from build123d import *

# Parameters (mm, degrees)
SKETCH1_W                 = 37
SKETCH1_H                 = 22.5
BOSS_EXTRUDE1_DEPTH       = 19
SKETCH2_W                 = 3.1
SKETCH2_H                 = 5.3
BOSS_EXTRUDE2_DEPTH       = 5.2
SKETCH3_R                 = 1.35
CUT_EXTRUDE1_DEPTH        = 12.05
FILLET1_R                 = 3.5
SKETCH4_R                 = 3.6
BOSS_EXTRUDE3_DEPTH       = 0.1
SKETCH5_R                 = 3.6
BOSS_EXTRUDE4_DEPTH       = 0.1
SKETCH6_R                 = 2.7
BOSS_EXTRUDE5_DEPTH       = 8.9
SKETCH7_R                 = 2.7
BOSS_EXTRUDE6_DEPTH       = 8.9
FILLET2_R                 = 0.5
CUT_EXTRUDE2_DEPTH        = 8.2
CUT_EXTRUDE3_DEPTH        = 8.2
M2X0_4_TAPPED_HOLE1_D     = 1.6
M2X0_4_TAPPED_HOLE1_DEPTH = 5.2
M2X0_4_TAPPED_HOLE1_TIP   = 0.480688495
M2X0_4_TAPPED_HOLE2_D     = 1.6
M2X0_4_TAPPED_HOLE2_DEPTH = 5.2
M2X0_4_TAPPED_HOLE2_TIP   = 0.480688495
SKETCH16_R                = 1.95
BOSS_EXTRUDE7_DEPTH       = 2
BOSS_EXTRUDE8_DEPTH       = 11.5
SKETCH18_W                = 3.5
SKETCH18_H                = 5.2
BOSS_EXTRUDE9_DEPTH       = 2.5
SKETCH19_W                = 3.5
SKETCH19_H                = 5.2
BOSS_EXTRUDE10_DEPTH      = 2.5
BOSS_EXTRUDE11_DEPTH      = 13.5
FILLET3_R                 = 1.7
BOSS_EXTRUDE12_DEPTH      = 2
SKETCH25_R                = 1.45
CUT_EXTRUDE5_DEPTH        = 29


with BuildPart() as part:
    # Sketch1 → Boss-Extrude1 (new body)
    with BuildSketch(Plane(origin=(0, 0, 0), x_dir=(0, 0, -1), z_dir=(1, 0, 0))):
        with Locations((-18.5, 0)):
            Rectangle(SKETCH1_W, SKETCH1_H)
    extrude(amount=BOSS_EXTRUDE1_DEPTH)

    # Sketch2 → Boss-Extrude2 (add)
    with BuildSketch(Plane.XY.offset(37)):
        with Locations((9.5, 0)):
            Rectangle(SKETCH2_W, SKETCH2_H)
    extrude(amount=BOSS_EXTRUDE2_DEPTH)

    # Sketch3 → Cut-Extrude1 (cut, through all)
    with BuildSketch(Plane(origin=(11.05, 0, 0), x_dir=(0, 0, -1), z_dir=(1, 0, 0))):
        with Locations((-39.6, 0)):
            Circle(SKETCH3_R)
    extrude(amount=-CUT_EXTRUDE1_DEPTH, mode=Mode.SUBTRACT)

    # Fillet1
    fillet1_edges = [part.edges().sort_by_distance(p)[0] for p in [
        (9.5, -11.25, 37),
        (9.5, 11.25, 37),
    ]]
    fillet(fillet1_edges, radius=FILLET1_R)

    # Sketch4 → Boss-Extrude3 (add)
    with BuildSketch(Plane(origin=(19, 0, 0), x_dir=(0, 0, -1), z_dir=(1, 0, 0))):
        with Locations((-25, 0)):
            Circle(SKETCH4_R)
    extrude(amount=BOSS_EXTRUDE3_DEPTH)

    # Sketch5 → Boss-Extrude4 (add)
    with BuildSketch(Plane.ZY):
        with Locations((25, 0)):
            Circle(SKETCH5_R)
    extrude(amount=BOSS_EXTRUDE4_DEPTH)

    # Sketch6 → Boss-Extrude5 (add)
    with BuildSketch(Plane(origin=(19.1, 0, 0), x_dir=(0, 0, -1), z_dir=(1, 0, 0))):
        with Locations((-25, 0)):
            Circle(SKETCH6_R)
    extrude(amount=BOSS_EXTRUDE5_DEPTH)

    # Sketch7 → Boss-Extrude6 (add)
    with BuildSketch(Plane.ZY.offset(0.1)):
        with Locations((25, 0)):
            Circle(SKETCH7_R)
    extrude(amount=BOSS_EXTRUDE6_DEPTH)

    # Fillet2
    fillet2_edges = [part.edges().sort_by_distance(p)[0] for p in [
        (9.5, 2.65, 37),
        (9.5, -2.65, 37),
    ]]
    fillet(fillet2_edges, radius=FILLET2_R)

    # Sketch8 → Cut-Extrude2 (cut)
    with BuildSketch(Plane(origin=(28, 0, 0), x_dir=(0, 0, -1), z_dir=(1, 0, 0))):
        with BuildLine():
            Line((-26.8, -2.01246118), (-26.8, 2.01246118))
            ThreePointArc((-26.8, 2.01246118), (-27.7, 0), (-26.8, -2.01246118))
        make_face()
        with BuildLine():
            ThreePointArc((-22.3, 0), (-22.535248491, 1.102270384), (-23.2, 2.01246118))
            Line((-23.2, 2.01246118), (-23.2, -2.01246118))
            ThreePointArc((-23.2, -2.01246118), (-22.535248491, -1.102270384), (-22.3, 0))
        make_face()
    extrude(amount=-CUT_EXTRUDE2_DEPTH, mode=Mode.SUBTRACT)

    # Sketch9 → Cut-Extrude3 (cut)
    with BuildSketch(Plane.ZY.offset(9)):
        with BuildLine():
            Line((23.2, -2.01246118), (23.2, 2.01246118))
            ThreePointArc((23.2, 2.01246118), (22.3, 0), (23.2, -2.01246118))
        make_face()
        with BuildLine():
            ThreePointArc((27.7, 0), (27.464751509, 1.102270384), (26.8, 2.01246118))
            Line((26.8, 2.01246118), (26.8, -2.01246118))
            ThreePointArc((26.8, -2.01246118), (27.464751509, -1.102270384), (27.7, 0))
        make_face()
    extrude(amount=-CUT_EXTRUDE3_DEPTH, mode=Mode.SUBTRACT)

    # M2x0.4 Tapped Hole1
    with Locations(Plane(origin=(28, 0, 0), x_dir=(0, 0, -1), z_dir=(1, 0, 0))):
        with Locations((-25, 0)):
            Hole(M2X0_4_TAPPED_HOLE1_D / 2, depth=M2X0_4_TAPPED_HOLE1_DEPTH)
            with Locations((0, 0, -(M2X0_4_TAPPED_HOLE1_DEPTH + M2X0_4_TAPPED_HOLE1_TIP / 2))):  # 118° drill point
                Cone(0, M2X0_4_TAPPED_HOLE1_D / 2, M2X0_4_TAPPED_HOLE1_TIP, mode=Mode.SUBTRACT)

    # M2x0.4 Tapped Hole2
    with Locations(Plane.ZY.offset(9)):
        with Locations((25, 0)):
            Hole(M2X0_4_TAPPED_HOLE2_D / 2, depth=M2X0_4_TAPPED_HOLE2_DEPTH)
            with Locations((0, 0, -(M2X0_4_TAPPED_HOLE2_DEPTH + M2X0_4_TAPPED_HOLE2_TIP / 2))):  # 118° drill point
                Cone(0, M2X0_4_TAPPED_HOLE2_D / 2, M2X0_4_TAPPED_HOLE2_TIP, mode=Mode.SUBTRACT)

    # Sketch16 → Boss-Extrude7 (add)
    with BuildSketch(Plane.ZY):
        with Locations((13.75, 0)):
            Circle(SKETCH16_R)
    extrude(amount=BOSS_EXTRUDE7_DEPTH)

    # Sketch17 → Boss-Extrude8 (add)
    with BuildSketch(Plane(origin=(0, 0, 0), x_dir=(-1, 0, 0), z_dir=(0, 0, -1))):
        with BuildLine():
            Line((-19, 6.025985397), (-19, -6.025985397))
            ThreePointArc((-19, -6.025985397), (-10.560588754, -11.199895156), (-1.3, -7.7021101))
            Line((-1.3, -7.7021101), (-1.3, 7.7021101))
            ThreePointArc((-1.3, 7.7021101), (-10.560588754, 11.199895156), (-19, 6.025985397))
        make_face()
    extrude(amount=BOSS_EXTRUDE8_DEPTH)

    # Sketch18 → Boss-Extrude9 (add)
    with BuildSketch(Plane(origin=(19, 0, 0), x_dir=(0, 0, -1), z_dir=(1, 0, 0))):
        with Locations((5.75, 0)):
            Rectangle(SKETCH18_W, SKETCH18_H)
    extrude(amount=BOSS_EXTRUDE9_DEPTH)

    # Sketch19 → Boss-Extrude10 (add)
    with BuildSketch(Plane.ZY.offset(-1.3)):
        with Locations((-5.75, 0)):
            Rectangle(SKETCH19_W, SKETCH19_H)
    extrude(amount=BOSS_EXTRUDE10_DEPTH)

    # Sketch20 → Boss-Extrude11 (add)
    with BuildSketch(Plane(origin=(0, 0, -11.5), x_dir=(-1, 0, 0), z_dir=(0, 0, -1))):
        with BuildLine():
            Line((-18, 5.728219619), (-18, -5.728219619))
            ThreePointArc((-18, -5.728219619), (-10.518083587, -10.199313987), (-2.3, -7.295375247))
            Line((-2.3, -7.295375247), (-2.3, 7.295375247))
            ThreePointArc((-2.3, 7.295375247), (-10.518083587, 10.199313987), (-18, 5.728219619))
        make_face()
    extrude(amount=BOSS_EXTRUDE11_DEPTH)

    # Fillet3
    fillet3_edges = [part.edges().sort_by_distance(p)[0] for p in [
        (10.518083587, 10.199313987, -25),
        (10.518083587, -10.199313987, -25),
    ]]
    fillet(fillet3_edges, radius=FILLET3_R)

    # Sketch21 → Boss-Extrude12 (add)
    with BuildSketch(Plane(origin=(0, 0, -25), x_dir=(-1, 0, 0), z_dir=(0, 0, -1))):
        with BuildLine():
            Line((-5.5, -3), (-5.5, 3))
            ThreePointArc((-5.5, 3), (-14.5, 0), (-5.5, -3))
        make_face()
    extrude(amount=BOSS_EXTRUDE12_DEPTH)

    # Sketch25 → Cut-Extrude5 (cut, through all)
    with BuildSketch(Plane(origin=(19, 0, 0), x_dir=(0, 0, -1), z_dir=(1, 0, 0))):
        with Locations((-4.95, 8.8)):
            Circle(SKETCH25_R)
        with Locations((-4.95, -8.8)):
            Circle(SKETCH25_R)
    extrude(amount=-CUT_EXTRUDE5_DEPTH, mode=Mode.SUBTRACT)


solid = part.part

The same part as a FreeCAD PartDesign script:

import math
import FreeCAD as App
import Part
import Sketcher
from FreeCAD import Vector
Q = App.Units.Quantity


def edges_at(feature, points):
    """Names of the edges that pass closest to the given points."""
    edges = feature.Shape.Edges
    near = lambda p: min(range(len(edges)), key=lambda i: edges[i].distToShape(Part.Vertex(*p))[0])
    return sorted({f"Edge{near(p) + 1}" for p in points})


def add_polygon(sketch, points):
    """Adds a closed chain of lines whose ends are joined by coincident constraints."""
    first, n = sketch.GeometryCount, len(points)
    for a, b in zip(points, points[1:] + points[:1]):
        sketch.addGeometry(Part.LineSegment(App.Vector(*a, 0), App.Vector(*b, 0)), False)
    for i in range(n):
        sketch.addConstraint(Sketcher.Constraint("Coincident", first + i, 2, first + (i + 1) % n, 1))

doc = App.newDocument("Part")
body = doc.addObject("PartDesign::Body", "Body")

# Sketch on YZ plane
sketch1 = body.newObject("Sketcher::SketchObject", "Sketch")
sketch1.AttachmentSupport = (doc.getObject("YZ_Plane"), [""])
sketch1.MapMode = "FlatFace"
add_polygon(sketch1, [(11.25, 37), (-11.25, 37), (-11.25, 0), (11.25, 0)])  # lines 0-3
sketch1.addConstraint(Sketcher.Constraint("Horizontal", 0))
sketch1.addConstraint(Sketcher.Constraint("Vertical", 1))
sketch1.addConstraint(Sketcher.Constraint("Horizontal", 2))
sketch1.addConstraint(Sketcher.Constraint("Vertical", 3))
sketch1.addConstraint(Sketcher.Constraint("Symmetric", 1, 2, 2, 2, -1, 1))
sketch1.addConstraint(Sketcher.Constraint("DistanceY", 1, 2, 1, 1, Q("37 mm")))
sketch1.addConstraint(Sketcher.Constraint("DistanceX", 0, 2, 0, 1, Q("22.5 mm")))
pad1 = body.newObject("PartDesign::Pad", "Pad")
pad1.Profile = sketch1
pad1.Length = 19

# Sketch on XY plane
sketch2 = body.newObject("Sketcher::SketchObject", "Sketch001")
sketch2.AttachmentSupport = (doc.getObject("XY_Plane"), [""])
sketch2.MapMode = "FlatFace"
sketch2.AttachmentOffset = App.Placement(Vector(0, 0, 37), App.Rotation())
add_polygon(sketch2, [(7.95, 2.65), (7.95, -2.65), (11.05, -2.65), (11.05, 2.65)])  # lines 0-3
sketch2.addConstraint(Sketcher.Constraint("Vertical", 0))
sketch2.addConstraint(Sketcher.Constraint("Horizontal", 1))
sketch2.addConstraint(Sketcher.Constraint("Vertical", 2))
sketch2.addConstraint(Sketcher.Constraint("Horizontal", 3))
sketch2.addConstraint(Sketcher.Constraint("DistanceX", 1, 1, 1, 2, Q("3.1 mm")))
sketch2.addConstraint(Sketcher.Constraint("DistanceY", 0, 2, 0, 1, Q("5.3 mm")))
sketch2.addConstraint(Sketcher.Constraint("DistanceX", -1, 1, 0, 2, Q("7.95 mm")))
sketch2.addConstraint(Sketcher.Constraint("DistanceY", 0, 2, -1, 1, Q("2.65 mm")))
pad2 = body.newObject("PartDesign::Pad", "Pad001")
pad2.Profile = sketch2
pad2.Length = 5.2

# Sketch on YZ plane
sketch3 = body.newObject("Sketcher::SketchObject", "Sketch002")
sketch3.AttachmentSupport = (doc.getObject("YZ_Plane"), [""])
sketch3.MapMode = "FlatFace"
sketch3.AttachmentOffset = App.Placement(Vector(0, 0, 11.05), App.Rotation())
sketch3.addGeometry(Part.Circle(Vector(0, 39.6, 0), Vector(0, 0, 1), 1.35), False)
sketch3.addConstraint(Sketcher.Constraint("PointOnObject", 0, 3, -2))
sketch3.addConstraint(Sketcher.Constraint("Diameter", 0, Q("2.7 mm")))
sketch3.addConstraint(Sketcher.Constraint("DistanceY", -1, 1, 0, 3, Q("39.6 mm")))
pocket1 = body.newObject("PartDesign::Pocket", "Pocket")
pocket1.Profile = sketch3
pocket1.Type = "ThroughAll"
doc.recompute()

fillet = body.newObject("PartDesign::Fillet", "Fillet")
fillet.Base = (pocket1, edges_at(pocket1, [(9.5, -11.25, 37), (9.5, 11.25, 37)]))
fillet.Radius = 3.5

# Sketch on YZ plane
sketch4 = body.newObject("Sketcher::SketchObject", "Sketch003")
sketch4.AttachmentSupport = (doc.getObject("YZ_Plane"), [""])
sketch4.MapMode = "FlatFace"
sketch4.AttachmentOffset = App.Placement(Vector(0, 0, 19), App.Rotation())
sketch4.addGeometry(Part.Circle(Vector(0, 25, 0), Vector(0, 0, 1), 3.6), False)
sketch4.addConstraint(Sketcher.Constraint("PointOnObject", 0, 3, -2))
sketch4.addConstraint(Sketcher.Constraint("Diameter", 0, Q("7.2 mm")))
sketch4.addConstraint(Sketcher.Constraint("DistanceY", -1, 1, 0, 3, Q("25 mm")))
pad3 = body.newObject("PartDesign::Pad", "Pad002")
pad3.Profile = sketch4
pad3.Length = 0.1

# Sketch on YZ plane
sketch5 = body.newObject("Sketcher::SketchObject", "Sketch004")
sketch5.AttachmentSupport = (doc.getObject("YZ_Plane"), [""])
sketch5.MapMode = "FlatFace"
sketch5.addGeometry(Part.Circle(Vector(0, 25, 0), Vector(0, 0, 1), 3.6), False)
sketch5.addConstraint(Sketcher.Constraint("PointOnObject", 0, 3, -2))
sketch5.addConstraint(Sketcher.Constraint("Diameter", 0, Q("7.2 mm")))
sketch5.addConstraint(Sketcher.Constraint("DistanceY", -1, 1, 0, 3, Q("25 mm")))
pad4 = body.newObject("PartDesign::Pad", "Pad003")
pad4.Profile = sketch5
pad4.Length = 0.1
pad4.Reversed = True

# Sketch on YZ plane
sketch6 = body.newObject("Sketcher::SketchObject", "Sketch005")
sketch6.AttachmentSupport = (doc.getObject("YZ_Plane"), [""])
sketch6.MapMode = "FlatFace"
sketch6.AttachmentOffset = App.Placement(Vector(0, 0, 19.1), App.Rotation())
sketch6.addGeometry(Part.Circle(Vector(0, 25, 0), Vector(0, 0, 1), 2.7), False)
sketch6.addConstraint(Sketcher.Constraint("PointOnObject", 0, 3, -2))
sketch6.addConstraint(Sketcher.Constraint("Diameter", 0, Q("5.4 mm")))
sketch6.addConstraint(Sketcher.Constraint("DistanceY", -1, 1, 0, 3, Q("25 mm")))
pad5 = body.newObject("PartDesign::Pad", "Pad004")
pad5.Profile = sketch6
pad5.Length = 8.9

# Sketch on YZ plane
sketch7 = body.newObject("Sketcher::SketchObject", "Sketch006")
sketch7.AttachmentSupport = (doc.getObject("YZ_Plane"), [""])
sketch7.MapMode = "FlatFace"
sketch7.AttachmentOffset = App.Placement(Vector(0, 0, -0.1), App.Rotation())
sketch7.addGeometry(Part.Circle(Vector(0, 25, 0), Vector(0, 0, 1), 2.7), False)
sketch7.addConstraint(Sketcher.Constraint("PointOnObject", 0, 3, -2))
sketch7.addConstraint(Sketcher.Constraint("Diameter", 0, Q("5.4 mm")))
sketch7.addConstraint(Sketcher.Constraint("DistanceY", -1, 1, 0, 3, Q("25 mm")))
pad6 = body.newObject("PartDesign::Pad", "Pad005")
pad6.Profile = sketch7
pad6.Length = 8.9
pad6.Reversed = True
doc.recompute()

fillet2 = body.newObject("PartDesign::Fillet", "Fillet001")
fillet2.Base = (pad6, edges_at(pad6, [(9.5, 2.65, 37), (9.5, -2.65, 37)]))
fillet2.Radius = 0.5

# Sketch on YZ plane
sketch8 = body.newObject("Sketcher::SketchObject", "Sketch007")
sketch8.AttachmentSupport = (doc.getObject("YZ_Plane"), [""])
sketch8.MapMode = "FlatFace"
sketch8.AttachmentOffset = App.Placement(Vector(0, 0, 28), App.Rotation())
sketch8.addGeometry(Part.LineSegment(Vector(-2.012461, 26.8, 0), Vector(2.012461, 26.8, 0)), False)
sketch8.addGeometry(Part.ArcOfCircle(Part.Circle(Vector(0, 25, 0), Vector(0, 0, 1), 2.7), math.radians(41.810315), math.radians(138.189685)), False)
sketch8.addGeometry(Part.ArcOfCircle(Part.Circle(Vector(0, 25, 0), Vector(0, 0, 1), 2.7), math.radians(-90), math.radians(-41.810315)), False)
sketch8.addGeometry(Part.LineSegment(Vector(2.012461, 23.2, 0), Vector(-2.012461, 23.2, 0)), False)
sketch8.addGeometry(Part.ArcOfCircle(Part.Circle(Vector(0, 25, 0), Vector(0, 0, 1), 2.7), math.radians(-138.189685), math.radians(-90)), False)
sketch8.addConstraint(Sketcher.Constraint("Coincident", 0, 1, 1, 2))
sketch8.addConstraint(Sketcher.Constraint("Coincident", 1, 1, 0, 2))
sketch8.addConstraint(Sketcher.Constraint("Coincident", 2, 2, 3, 1))
sketch8.addConstraint(Sketcher.Constraint("Coincident", 3, 2, 4, 1))
sketch8.addConstraint(Sketcher.Constraint("Tangent", 4, 2, 2, 1))
sketch8.addConstraint(Sketcher.Constraint("Horizontal", 0))
sketch8.addConstraint(Sketcher.Constraint("Horizontal", 3))
sketch8.addConstraint(Sketcher.Constraint("Coincident", 2, 3, 1, 3))
sketch8.addConstraint(Sketcher.Constraint("Equal", 1, 2))
sketch8.addConstraint(Sketcher.Constraint("Equal", 2, 4))
sketch8.addConstraint(Sketcher.Constraint("PointOnObject", 1, 3, -2))
sketch8.addConstraint(Sketcher.Constraint("PointOnObject", 4, 2, -2))
sketch8.addConstraint(Sketcher.Constraint("Vertical", 1, 1, 2, 2))
sketch8.addConstraint(Sketcher.Constraint("Radius", 1, Q("2.7 mm")))
sketch8.addConstraint(Sketcher.Constraint("DistanceY", -1, 1, 1, 3, Q("25 mm")))
sketch8.addConstraint(Sketcher.Constraint("DistanceY", -1, 1, 0, 1, Q("26.8 mm")))
pocket2 = body.newObject("PartDesign::Pocket", "Pocket001")
pocket2.Profile = sketch8
pocket2.Length = 8.2

# Sketch on YZ plane
sketch9 = body.newObject("Sketcher::SketchObject", "Sketch008")
sketch9.AttachmentSupport = (doc.getObject("YZ_Plane"), [""])
sketch9.MapMode = "FlatFace"
sketch9.AttachmentOffset = App.Placement(Vector(0, 0, -9), App.Rotation())
sketch9.addGeometry(Part.LineSegment(Vector(-2.012461, 23.2, 0), Vector(2.012461, 23.2, 0)), False)
sketch9.addGeometry(Part.ArcOfCircle(Part.Circle(Vector(0, 25, 0), Vector(0, 0, 1), 2.7), math.radians(-138.189685), math.radians(-41.810315)), False)
sketch9.addGeometry(Part.ArcOfCircle(Part.Circle(Vector(0, 25, 0), Vector(0, 0, 1), 2.7), math.radians(41.810315), math.radians(90)), False)
sketch9.addGeometry(Part.LineSegment(Vector(2.012461, 26.8, 0), Vector(-2.012461, 26.8, 0)), False)
sketch9.addGeometry(Part.ArcOfCircle(Part.Circle(Vector(0, 25, 0), Vector(0, 0, 1), 2.7), math.radians(90), math.radians(138.189685)), False)
sketch9.addConstraint(Sketcher.Constraint("Coincident", 0, 1, 1, 1))
sketch9.addConstraint(Sketcher.Constraint("Coincident", 1, 2, 0, 2))
sketch9.addConstraint(Sketcher.Constraint("Coincident", 2, 1, 3, 1))
sketch9.addConstraint(Sketcher.Constraint("Coincident", 3, 2, 4, 2))
sketch9.addConstraint(Sketcher.Constraint("Tangent", 4, 1, 2, 2))
sketch9.addConstraint(Sketcher.Constraint("Horizontal", 0))
sketch9.addConstraint(Sketcher.Constraint("Horizontal", 3))
sketch9.addConstraint(Sketcher.Constraint("Coincident", 2, 3, 1, 3))
sketch9.addConstraint(Sketcher.Constraint("Equal", 1, 2))
sketch9.addConstraint(Sketcher.Constraint("Equal", 2, 4))
sketch9.addConstraint(Sketcher.Constraint("PointOnObject", 1, 3, -2))
sketch9.addConstraint(Sketcher.Constraint("PointOnObject", 4, 1, -2))
sketch9.addConstraint(Sketcher.Constraint("Vertical", 1, 2, 2, 1))
sketch9.addConstraint(Sketcher.Constraint("Radius", 1, Q("2.7 mm")))
sketch9.addConstraint(Sketcher.Constraint("DistanceY", -1, 1, 1, 3, Q("25 mm")))
sketch9.addConstraint(Sketcher.Constraint("DistanceY", -1, 1, 0, 1, Q("23.2 mm")))
pocket3 = body.newObject("PartDesign::Pocket", "Pocket002")
pocket3.Profile = sketch9
pocket3.Length = 8.2
pocket3.Reversed = True

# Sketch on YZ plane
sketch10 = body.newObject("Sketcher::SketchObject", "Sketch009")
sketch10.AttachmentSupport = (doc.getObject("YZ_Plane"), [""])
sketch10.MapMode = "FlatFace"
sketch10.AttachmentOffset = App.Placement(Vector(0, 0, 28), App.Rotation())
sketch10.addGeometry(Part.Circle(Vector(0, 25, 0), Vector(0, 0, 1), 0.8), False)
sketch10.addConstraint(Sketcher.Constraint("PointOnObject", 0, 3, -2))
sketch10.addConstraint(Sketcher.Constraint("Diameter", 0, Q("1.6 mm")))
sketch10.addConstraint(Sketcher.Constraint("DistanceY", -1, 1, 0, 3, Q("25 mm")))
doc.recompute()
hole = body.newObject("PartDesign::Hole", "Hole")
hole.Profile = sketch10
hole.ThreadType = "None"
hole.Diameter = 1.6
hole.DepthType = "Dimension"
hole.Depth = 5.2
hole.DrillPoint = "Angled"
hole.DrillPointAngle = 118

# Sketch on YZ plane
sketch11 = body.newObject("Sketcher::SketchObject", "Sketch010")
sketch11.AttachmentSupport = (doc.getObject("YZ_Plane"), [""])
sketch11.MapMode = "FlatFace"
sketch11.AttachmentOffset = App.Placement(Vector(0, 0, -9), App.Rotation())
sketch11.addGeometry(Part.Circle(Vector(0, 25, 0), Vector(0, 0, 1), 0.8), False)
sketch11.addConstraint(Sketcher.Constraint("PointOnObject", 0, 3, -2))
sketch11.addConstraint(Sketcher.Constraint("Diameter", 0, Q("1.6 mm")))
sketch11.addConstraint(Sketcher.Constraint("DistanceY", -1, 1, 0, 3, Q("25 mm")))
doc.recompute()
hole2 = body.newObject("PartDesign::Hole", "Hole001")
hole2.Profile = sketch11
hole2.ThreadType = "None"
hole2.Diameter = 1.6
hole2.DepthType = "Dimension"
hole2.Depth = 5.2
hole2.DrillPoint = "Angled"
hole2.DrillPointAngle = 118
hole2.Reversed = True

# Sketch on YZ plane
sketch12 = body.newObject("Sketcher::SketchObject", "Sketch011")
sketch12.AttachmentSupport = (doc.getObject("YZ_Plane"), [""])
sketch12.MapMode = "FlatFace"
sketch12.addGeometry(Part.Circle(Vector(0, 13.75, 0), Vector(0, 0, 1), 1.95), False)
sketch12.addConstraint(Sketcher.Constraint("PointOnObject", 0, 3, -2))
sketch12.addConstraint(Sketcher.Constraint("Diameter", 0, Q("3.9 mm")))
sketch12.addConstraint(Sketcher.Constraint("DistanceY", -1, 1, 0, 3, Q("13.75 mm")))
pad7 = body.newObject("PartDesign::Pad", "Pad006")
pad7.Profile = sketch12
pad7.Length = 2
pad7.Reversed = True

# Sketch on XY plane
sketch13 = body.newObject("Sketcher::SketchObject", "Sketch012")
sketch13.AttachmentSupport = (doc.getObject("XY_Plane"), [""])
sketch13.MapMode = "FlatFace"
sketch13.addGeometry(Part.LineSegment(Vector(19, 6.025985, 0), Vector(19, -6.025985, 0)), False)
sketch13.addGeometry(Part.ArcOfCircle(Part.Circle(Vector(9.5, 0, 0), Vector(0, 0, 1), 11.25), math.radians(-136.793326), math.radians(-32.387539)), False)
sketch13.addGeometry(Part.LineSegment(Vector(1.3, -7.70211, 0), Vector(1.3, 7.70211, 0)), False)
sketch13.addGeometry(Part.ArcOfCircle(Part.Circle(Vector(9.5, 0, 0), Vector(0, 0, 1), 11.25), math.radians(32.387539), math.radians(136.793326)), False)
sketch13.addConstraint(Sketcher.Constraint("Coincident", 0, 2, 1, 2))
sketch13.addConstraint(Sketcher.Constraint("Coincident", 1, 1, 2, 1))
sketch13.addConstraint(Sketcher.Constraint("Coincident", 2, 2, 3, 2))
sketch13.addConstraint(Sketcher.Constraint("Coincident", 3, 1, 0, 1))
sketch13.addConstraint(Sketcher.Constraint("Vertical", 0))
sketch13.addConstraint(Sketcher.Constraint("Vertical", 2))
sketch13.addConstraint(Sketcher.Constraint("Coincident", 3, 3, 1, 3))
sketch13.addConstraint(Sketcher.Constraint("Equal", 1, 3))
sketch13.addConstraint(Sketcher.Constraint("PointOnObject", 1, 3, -1))
sketch13.addConstraint(Sketcher.Constraint("Radius", 1, Q("11.25 mm")))
sketch13.addConstraint(Sketcher.Constraint("DistanceX", -1, 1, 0, 2, Q("19 mm")))
sketch13.addConstraint(Sketcher.Constraint("DistanceX", -1, 1, 1, 3, Q("9.5 mm")))
sketch13.addConstraint(Sketcher.Constraint("DistanceX", -1, 1, 1, 1, Q("1.3 mm")))
pad8 = body.newObject("PartDesign::Pad", "Pad007")
pad8.Profile = sketch13
pad8.Length = 11.5
pad8.Reversed = True

# Sketch on YZ plane
sketch14 = body.newObject("Sketcher::SketchObject", "Sketch013")
sketch14.AttachmentSupport = (doc.getObject("YZ_Plane"), [""])
sketch14.MapMode = "FlatFace"
sketch14.AttachmentOffset = App.Placement(Vector(0, 0, 19), App.Rotation())
add_polygon(sketch14, [(2.6, -4), (-2.6, -4), (-2.6, -7.5), (2.6, -7.5)])  # lines 0-3
sketch14.addConstraint(Sketcher.Constraint("Horizontal", 0))
sketch14.addConstraint(Sketcher.Constraint("Vertical", 1))
sketch14.addConstraint(Sketcher.Constraint("Horizontal", 2))
sketch14.addConstraint(Sketcher.Constraint("Vertical", 3))
sketch14.addConstraint(Sketcher.Constraint("DistanceX", 0, 2, 0, 1, Q("5.2 mm")))
sketch14.addConstraint(Sketcher.Constraint("DistanceY", 1, 2, 1, 1, Q("3.5 mm")))
sketch14.addConstraint(Sketcher.Constraint("DistanceY", 0, 2, -1, 1, Q("4 mm")))
sketch14.addConstraint(Sketcher.Constraint("DistanceX", 0, 2, -1, 1, Q("2.6 mm")))
pad9 = body.newObject("PartDesign::Pad", "Pad008")
pad9.Profile = sketch14
pad9.Length = 2.5

# Sketch on YZ plane
sketch15 = body.newObject("Sketcher::SketchObject", "Sketch014")
sketch15.AttachmentSupport = (doc.getObject("YZ_Plane"), [""])
sketch15.MapMode = "FlatFace"
sketch15.AttachmentOffset = App.Placement(Vector(0, 0, 1.3), App.Rotation())
add_polygon(sketch15, [(2.6, -7.5), (-2.6, -7.5), (-2.6, -4), (2.6, -4)])  # lines 0-3
sketch15.addConstraint(Sketcher.Constraint("Horizontal", 0))
sketch15.addConstraint(Sketcher.Constraint("Vertical", 1))
sketch15.addConstraint(Sketcher.Constraint("Horizontal", 2))
sketch15.addConstraint(Sketcher.Constraint("Vertical", 3))
sketch15.addConstraint(Sketcher.Constraint("DistanceX", 0, 2, 0, 1, Q("5.2 mm")))
sketch15.addConstraint(Sketcher.Constraint("DistanceY", 1, 1, 1, 2, Q("3.5 mm")))
sketch15.addConstraint(Sketcher.Constraint("DistanceY", 1, 2, -1, 1, Q("4 mm")))
sketch15.addConstraint(Sketcher.Constraint("DistanceX", 0, 2, -1, 1, Q("2.6 mm")))
pad10 = body.newObject("PartDesign::Pad", "Pad009")
pad10.Profile = sketch15
pad10.Length = 2.5
pad10.Reversed = True

# Sketch on XY plane
sketch16 = body.newObject("Sketcher::SketchObject", "Sketch015")
sketch16.AttachmentSupport = (doc.getObject("XY_Plane"), [""])
sketch16.MapMode = "FlatFace"
sketch16.AttachmentOffset = App.Placement(Vector(0, 0, -11.5), App.Rotation())
sketch16.addGeometry(Part.LineSegment(Vector(18, 5.72822, 0), Vector(18, -5.72822, 0)), False)
sketch16.addGeometry(Part.ArcOfCircle(Part.Circle(Vector(9.5, 0, 0), Vector(0, 0, 1), 10.25), math.radians(-134.623016), math.radians(-33.976353)), False)
sketch16.addGeometry(Part.LineSegment(Vector(2.3, -7.295375, 0), Vector(2.3, 7.295375, 0)), False)
sketch16.addGeometry(Part.ArcOfCircle(Part.Circle(Vector(9.5, 0, 0), Vector(0, 0, 1), 10.25), math.radians(33.976353), math.radians(134.623016)), False)
sketch16.addConstraint(Sketcher.Constraint("Coincident", 0, 2, 1, 2))
sketch16.addConstraint(Sketcher.Constraint("Coincident", 1, 1, 2, 1))
sketch16.addConstraint(Sketcher.Constraint("Coincident", 2, 2, 3, 2))
sketch16.addConstraint(Sketcher.Constraint("Coincident", 3, 1, 0, 1))
sketch16.addConstraint(Sketcher.Constraint("Vertical", 0))
sketch16.addConstraint(Sketcher.Constraint("Vertical", 2))
sketch16.addConstraint(Sketcher.Constraint("Coincident", 3, 3, 1, 3))
sketch16.addConstraint(Sketcher.Constraint("Equal", 1, 3))
sketch16.addConstraint(Sketcher.Constraint("PointOnObject", 1, 3, -1))
sketch16.addConstraint(Sketcher.Constraint("Radius", 1, Q("10.25 mm")))
sketch16.addConstraint(Sketcher.Constraint("DistanceX", -1, 1, 0, 2, Q("18 mm")))
sketch16.addConstraint(Sketcher.Constraint("DistanceX", -1, 1, 1, 3, Q("9.5 mm")))
sketch16.addConstraint(Sketcher.Constraint("DistanceX", -1, 1, 1, 1, Q("2.3 mm")))
pad11 = body.newObject("PartDesign::Pad", "Pad010")
pad11.Profile = sketch16
pad11.Length = 13.5
pad11.Reversed = True
doc.recompute()

fillet3 = body.newObject("PartDesign::Fillet", "Fillet002")
fillet3.Base = (pad11, edges_at(pad11, [(10.518, 10.199, -25), (10.518, -10.199, -25)]))
fillet3.Radius = 1.7

# Sketch on XY plane
sketch17 = body.newObject("Sketcher::SketchObject", "Sketch016")
sketch17.AttachmentSupport = (doc.getObject("XY_Plane"), [""])
sketch17.MapMode = "FlatFace"
sketch17.AttachmentOffset = App.Placement(Vector(0, 0, -25), App.Rotation())
sketch17.addGeometry(Part.LineSegment(Vector(5.5, -3, 0), Vector(5.5, 3, 0)), False)
sketch17.addGeometry(Part.ArcOfCircle(Part.Circle(Vector(9.5, 0, 0), Vector(0, 0, 1), 5), math.radians(-143.130102), math.radians(143.130102)), False)
sketch17.addConstraint(Sketcher.Constraint("Coincident", 0, 1, 1, 1))
sketch17.addConstraint(Sketcher.Constraint("Coincident", 1, 2, 0, 2))
sketch17.addConstraint(Sketcher.Constraint("Vertical", 0))
sketch17.addConstraint(Sketcher.Constraint("PointOnObject", 1, 3, -1))
sketch17.addConstraint(Sketcher.Constraint("Radius", 1, Q("5 mm")))
sketch17.addConstraint(Sketcher.Constraint("DistanceY", 0, 1, 0, 2, Q("6 mm")))
sketch17.addConstraint(Sketcher.Constraint("DistanceX", -1, 1, 1, 3, Q("9.5 mm")))
pad12 = body.newObject("PartDesign::Pad", "Pad011")
pad12.Profile = sketch17
pad12.Length = 2
pad12.Reversed = True

# Sketch on YZ plane
sketch18 = body.newObject("Sketcher::SketchObject", "Sketch017")
sketch18.AttachmentSupport = (doc.getObject("YZ_Plane"), [""])
sketch18.MapMode = "FlatFace"
sketch18.AttachmentOffset = App.Placement(Vector(0, 0, 19), App.Rotation())
sketch18.addGeometry(Part.Circle(Vector(8.8, 4.95, 0), Vector(0, 0, 1), 1.45), False)
sketch18.addGeometry(Part.Circle(Vector(-8.8, 4.95, 0), Vector(0, 0, 1), 1.45), False)
sketch18.addConstraint(Sketcher.Constraint("Equal", 0, 1))
sketch18.addConstraint(Sketcher.Constraint("Symmetric", 0, 3, 1, 3, -2))
sketch18.addConstraint(Sketcher.Constraint("Diameter", 0, Q("2.9 mm")))
sketch18.addConstraint(Sketcher.Constraint("DistanceX", -1, 1, 0, 3, Q("8.8 mm")))
sketch18.addConstraint(Sketcher.Constraint("DistanceY", -1, 1, 0, 3, Q("4.95 mm")))
pocket4 = body.newObject("PartDesign::Pocket", "Pocket003")
pocket4.Profile = sketch18
pocket4.Type = "ThroughAll"

doc.recompute()
